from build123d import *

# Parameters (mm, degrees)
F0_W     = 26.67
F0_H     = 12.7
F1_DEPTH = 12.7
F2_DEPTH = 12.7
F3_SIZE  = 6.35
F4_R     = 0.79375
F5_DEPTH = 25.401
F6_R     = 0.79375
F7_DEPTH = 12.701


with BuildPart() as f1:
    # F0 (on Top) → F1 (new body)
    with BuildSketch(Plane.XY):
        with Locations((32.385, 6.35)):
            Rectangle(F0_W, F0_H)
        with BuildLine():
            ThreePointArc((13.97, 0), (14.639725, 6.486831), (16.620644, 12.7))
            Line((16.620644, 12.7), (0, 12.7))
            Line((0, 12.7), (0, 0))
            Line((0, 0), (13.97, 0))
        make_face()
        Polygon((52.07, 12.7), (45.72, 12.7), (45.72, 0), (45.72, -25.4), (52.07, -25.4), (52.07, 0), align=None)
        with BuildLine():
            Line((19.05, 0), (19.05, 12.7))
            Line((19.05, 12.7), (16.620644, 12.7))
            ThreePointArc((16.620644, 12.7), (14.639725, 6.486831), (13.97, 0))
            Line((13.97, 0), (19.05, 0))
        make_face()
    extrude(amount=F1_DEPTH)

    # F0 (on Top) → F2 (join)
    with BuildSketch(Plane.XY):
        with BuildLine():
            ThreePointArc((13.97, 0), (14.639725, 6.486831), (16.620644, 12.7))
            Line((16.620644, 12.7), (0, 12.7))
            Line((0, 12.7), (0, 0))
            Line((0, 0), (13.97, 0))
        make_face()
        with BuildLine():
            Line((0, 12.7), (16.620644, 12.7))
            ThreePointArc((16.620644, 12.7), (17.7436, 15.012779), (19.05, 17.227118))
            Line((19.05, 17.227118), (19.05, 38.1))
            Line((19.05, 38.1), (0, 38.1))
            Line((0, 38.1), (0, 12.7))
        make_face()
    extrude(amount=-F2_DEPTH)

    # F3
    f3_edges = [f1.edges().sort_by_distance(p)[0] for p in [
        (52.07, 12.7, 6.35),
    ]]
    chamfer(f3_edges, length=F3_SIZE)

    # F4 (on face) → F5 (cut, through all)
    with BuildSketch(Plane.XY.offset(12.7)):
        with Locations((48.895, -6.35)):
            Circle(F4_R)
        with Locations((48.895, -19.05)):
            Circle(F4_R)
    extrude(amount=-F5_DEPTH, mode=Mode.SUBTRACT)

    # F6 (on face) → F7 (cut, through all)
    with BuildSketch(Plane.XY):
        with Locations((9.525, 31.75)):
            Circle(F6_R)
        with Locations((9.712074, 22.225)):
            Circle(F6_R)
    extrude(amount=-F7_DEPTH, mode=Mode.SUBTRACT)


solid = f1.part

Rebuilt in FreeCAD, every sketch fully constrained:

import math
import FreeCAD as App
import Part
import Sketcher
from FreeCAD import Vector
Q = App.Units.Quantity


def edges_at(feature, points):
    """Names of the edges that pass closest to the given points."""
    edges = feature.Shape.Edges
    near = lambda p: min(range(len(edges)), key=lambda i: edges[i].distToShape(Part.Vertex(*p))[0])
    return sorted({f"Edge{near(p) + 1}" for p in points})


def add_polygon(sketch, points):
    """Adds a closed chain of lines whose ends are joined by coincident constraints."""
    first, n = sketch.GeometryCount, len(points)
    for a, b in zip(points, points[1:] + points[:1]):
        sketch.addGeometry(Part.LineSegment(App.Vector(*a, 0), App.Vector(*b, 0)), False)
    for i in range(n):
        sketch.addConstraint(Sketcher.Constraint("Coincident", first + i, 2, first + (i + 1) % n, 1))

doc = App.newDocument("Part")
body = doc.addObject("PartDesign::Body", "Body")

# Sketch on XY plane
sketch1 = body.newObject("Sketcher::SketchObject", "Sketch")
sketch1.AttachmentSupport = (doc.getObject("XY_Plane"), [""])
sketch1.MapMode = "FlatFace"
add_polygon(sketch1, [(45.72, 0), (45.72, -25.4), (52.07, -25.4), (52.07, 12.7), (0, 12.7), (0, 0)])  # lines 0-5
sketch1.addConstraint([
    Sketcher.Constraint("Vertical", 0),
    Sketcher.Constraint("Horizontal", 1),
    Sketcher.Constraint("Vertical", 2),
    Sketcher.Constraint("Horizontal", 3),
    Sketcher.Constraint("Vertical", 4),
    Sketcher.Constraint("Horizontal", 5),
    Sketcher.Constraint("Coincident", 4, 2, -1, 1),
    Sketcher.Constraint("DistanceY", 0, 2, 0, 1, Q("1 in")),
    Sketcher.Constraint("DistanceX", 5, 1, 5, 2, Q("1.8 in")),
    Sketcher.Constraint("DistanceY", 2, 1, 2, 2, Q("1.5 in")),
    Sketcher.Constraint("DistanceX", 1, 1, 1, 2, Q("0.25 in")),
])
pad1 = body.newObject("PartDesign::Pad", "Pad")
pad1.Profile = sketch1
pad1.Length = Q("0.5 in")

# Sketch on XY plane
sketch2 = body.newObject("Sketcher::SketchObject", "Sketch001")
sketch2.AttachmentSupport = (doc.getObject("XY_Plane"), [""])
sketch2.MapMode = "FlatFace"
sketch2.addGeometry([
    Part.ArcOfCircle(Part.Circle(Vector(45.720029, -0.000005, 0), Vector(0, 0, 1), 31.750029), math.radians(156.421834), math.radians(179.999991)),  # 0
    Part.ArcOfCircle(Part.Circle(Vector(45.72007, -0.00004, 0), Vector(0, 0, 1), 31.750081), math.radians(147.140127), math.radians(156.421806)),  # 1
    Part.LineSegment(Vector(19.05, 17.227118, 0), Vector(19.05, 38.1, 0)),  # 2
    Part.LineSegment(Vector(19.05, 38.1, 0), Vector(0, 38.1, 0)),  # 3
    Part.LineSegment(Vector(0, 38.1, 0), Vector(0, 0, 0)),  # 4
    Part.LineSegment(Vector(0, 0, 0), Vector(13.97, 0, 0)),  # 5
], False)
sketch2.addConstraint([
    Sketcher.Constraint("Tangent", 0, 1, 1, 2),
    Sketcher.Constraint("Coincident", 1, 1, 2, 1),
    Sketcher.Constraint("Coincident", 2, 2, 3, 1),
    Sketcher.Constraint("Coincident", 3, 2, 4, 1),
    Sketcher.Constraint("Coincident", 4, 2, 5, 1),
    Sketcher.Constraint("Coincident", 5, 2, 0, 2),
    Sketcher.Constraint("Vertical", 2),
    Sketcher.Constraint("Horizontal", 3),
    Sketcher.Constraint("Vertical", 4),
    Sketcher.Constraint("Horizontal", 5),
    Sketcher.Constraint("Coincident", 4, 2, -1, 1),
    Sketcher.Constraint("DistanceY", 4, 2, 4, 1, Q("1.5 in")),
    Sketcher.Constraint("DistanceY", 0, 1, 2, 2, Q("1 in")),
    Sketcher.Constraint("DistanceX", 3, 2, 3, 1, Q("0.75 in")),
    Sketcher.Constraint("DistanceX", 5, 1, 5, 2, Q("0.55 in")),
    Sketcher.Constraint("Radius", 0, 31.750029),
    Sketcher.Constraint("Radius", 1, 31.750081),
    Sketcher.Constraint("DistanceY", 2, 1, 2, 2, 20.872882),
])
pad2 = body.newObject("PartDesign::Pad", "Pad001")
pad2.Profile = sketch2
pad2.Length = Q("0.5 in")
pad2.Reversed = True
doc.recompute()

chamfer = body.newObject("PartDesign::Chamfer", "Chamfer")
chamfer.Base = (pad2, edges_at(pad2, [(52.07, 12.7, 6.35)]))
chamfer.Size = Q("0.25 in")

# Sketch on XY plane
sketch3 = body.newObject("Sketcher::SketchObject", "Sketch002")
sketch3.AttachmentSupport = (doc.getObject("XY_Plane"), [""])
sketch3.MapMode = "FlatFace"
sketch3.AttachmentOffset = App.Placement(Vector(0, 0, 0.5 * 25.4), App.Rotation())
sketch3.addGeometry([
    Part.Circle(Vector(48.895, -6.35, 0), Vector(0, 0, 1), 0.79375),
    Part.Circle(Vector(48.895, -19.05, 0), Vector(0, 0, 1), 0.79375),
], False)
sketch3.addConstraint([
    Sketcher.Constraint("Equal", 0, 1),
    Sketcher.Constraint("Vertical", 0, 3, 1, 3),
    Sketcher.Constraint("Diameter", 0, Q("0.0625 in")),
    Sketcher.Constraint("DistanceY", 1, 3, 0, 3, Q("0.5 in")),
    Sketcher.Constraint("DistanceY", 0, 3, -1, 1, Q("0.25 in")),
    Sketcher.Constraint("DistanceX", -1, 1, 0, 3, Q("1.925 in")),
])
pocket1 = body.newObject("PartDesign::Pocket", "Pocket")
pocket1.Profile = sketch3
pocket1.Type = "ThroughAll"

# Sketch on XY plane
sketch4 = body.newObject("Sketcher::SketchObject", "Sketch003")
sketch4.AttachmentSupport = (doc.getObject("XY_Plane"), [""])
sketch4.MapMode = "FlatFace"
sketch4.addGeometry([
    Part.Circle(Vector(9.525, 31.75, 0), Vector(0, 0, 1), 0.79375),
    Part.Circle(Vector(9.712074, 22.225, 0), Vector(0, 0, 1), 0.79375),
], False)
sketch4.addConstraint([
    Sketcher.Constraint("Equal", 0, 1),
    Sketcher.Constraint("Diameter", 0, Q("0.0625 in")),
    Sketcher.Constraint("DistanceY", -1, 1, 0, 3, Q("1.25 in")),
    Sketcher.Constraint("DistanceX", -1, 1, 0, 3, Q("0.375 in")),
    Sketcher.Constraint("DistanceY", -1, 1, 1, 3, Q("0.875 in")),
    Sketcher.Constraint("DistanceX", -1, 1, 1, 3, 9.712074),
])
pocket2 = body.newObject("PartDesign::Pocket", "Pocket001")
pocket2.Profile = sketch4
pocket2.Type = "ThroughAll"

doc.recompute()
